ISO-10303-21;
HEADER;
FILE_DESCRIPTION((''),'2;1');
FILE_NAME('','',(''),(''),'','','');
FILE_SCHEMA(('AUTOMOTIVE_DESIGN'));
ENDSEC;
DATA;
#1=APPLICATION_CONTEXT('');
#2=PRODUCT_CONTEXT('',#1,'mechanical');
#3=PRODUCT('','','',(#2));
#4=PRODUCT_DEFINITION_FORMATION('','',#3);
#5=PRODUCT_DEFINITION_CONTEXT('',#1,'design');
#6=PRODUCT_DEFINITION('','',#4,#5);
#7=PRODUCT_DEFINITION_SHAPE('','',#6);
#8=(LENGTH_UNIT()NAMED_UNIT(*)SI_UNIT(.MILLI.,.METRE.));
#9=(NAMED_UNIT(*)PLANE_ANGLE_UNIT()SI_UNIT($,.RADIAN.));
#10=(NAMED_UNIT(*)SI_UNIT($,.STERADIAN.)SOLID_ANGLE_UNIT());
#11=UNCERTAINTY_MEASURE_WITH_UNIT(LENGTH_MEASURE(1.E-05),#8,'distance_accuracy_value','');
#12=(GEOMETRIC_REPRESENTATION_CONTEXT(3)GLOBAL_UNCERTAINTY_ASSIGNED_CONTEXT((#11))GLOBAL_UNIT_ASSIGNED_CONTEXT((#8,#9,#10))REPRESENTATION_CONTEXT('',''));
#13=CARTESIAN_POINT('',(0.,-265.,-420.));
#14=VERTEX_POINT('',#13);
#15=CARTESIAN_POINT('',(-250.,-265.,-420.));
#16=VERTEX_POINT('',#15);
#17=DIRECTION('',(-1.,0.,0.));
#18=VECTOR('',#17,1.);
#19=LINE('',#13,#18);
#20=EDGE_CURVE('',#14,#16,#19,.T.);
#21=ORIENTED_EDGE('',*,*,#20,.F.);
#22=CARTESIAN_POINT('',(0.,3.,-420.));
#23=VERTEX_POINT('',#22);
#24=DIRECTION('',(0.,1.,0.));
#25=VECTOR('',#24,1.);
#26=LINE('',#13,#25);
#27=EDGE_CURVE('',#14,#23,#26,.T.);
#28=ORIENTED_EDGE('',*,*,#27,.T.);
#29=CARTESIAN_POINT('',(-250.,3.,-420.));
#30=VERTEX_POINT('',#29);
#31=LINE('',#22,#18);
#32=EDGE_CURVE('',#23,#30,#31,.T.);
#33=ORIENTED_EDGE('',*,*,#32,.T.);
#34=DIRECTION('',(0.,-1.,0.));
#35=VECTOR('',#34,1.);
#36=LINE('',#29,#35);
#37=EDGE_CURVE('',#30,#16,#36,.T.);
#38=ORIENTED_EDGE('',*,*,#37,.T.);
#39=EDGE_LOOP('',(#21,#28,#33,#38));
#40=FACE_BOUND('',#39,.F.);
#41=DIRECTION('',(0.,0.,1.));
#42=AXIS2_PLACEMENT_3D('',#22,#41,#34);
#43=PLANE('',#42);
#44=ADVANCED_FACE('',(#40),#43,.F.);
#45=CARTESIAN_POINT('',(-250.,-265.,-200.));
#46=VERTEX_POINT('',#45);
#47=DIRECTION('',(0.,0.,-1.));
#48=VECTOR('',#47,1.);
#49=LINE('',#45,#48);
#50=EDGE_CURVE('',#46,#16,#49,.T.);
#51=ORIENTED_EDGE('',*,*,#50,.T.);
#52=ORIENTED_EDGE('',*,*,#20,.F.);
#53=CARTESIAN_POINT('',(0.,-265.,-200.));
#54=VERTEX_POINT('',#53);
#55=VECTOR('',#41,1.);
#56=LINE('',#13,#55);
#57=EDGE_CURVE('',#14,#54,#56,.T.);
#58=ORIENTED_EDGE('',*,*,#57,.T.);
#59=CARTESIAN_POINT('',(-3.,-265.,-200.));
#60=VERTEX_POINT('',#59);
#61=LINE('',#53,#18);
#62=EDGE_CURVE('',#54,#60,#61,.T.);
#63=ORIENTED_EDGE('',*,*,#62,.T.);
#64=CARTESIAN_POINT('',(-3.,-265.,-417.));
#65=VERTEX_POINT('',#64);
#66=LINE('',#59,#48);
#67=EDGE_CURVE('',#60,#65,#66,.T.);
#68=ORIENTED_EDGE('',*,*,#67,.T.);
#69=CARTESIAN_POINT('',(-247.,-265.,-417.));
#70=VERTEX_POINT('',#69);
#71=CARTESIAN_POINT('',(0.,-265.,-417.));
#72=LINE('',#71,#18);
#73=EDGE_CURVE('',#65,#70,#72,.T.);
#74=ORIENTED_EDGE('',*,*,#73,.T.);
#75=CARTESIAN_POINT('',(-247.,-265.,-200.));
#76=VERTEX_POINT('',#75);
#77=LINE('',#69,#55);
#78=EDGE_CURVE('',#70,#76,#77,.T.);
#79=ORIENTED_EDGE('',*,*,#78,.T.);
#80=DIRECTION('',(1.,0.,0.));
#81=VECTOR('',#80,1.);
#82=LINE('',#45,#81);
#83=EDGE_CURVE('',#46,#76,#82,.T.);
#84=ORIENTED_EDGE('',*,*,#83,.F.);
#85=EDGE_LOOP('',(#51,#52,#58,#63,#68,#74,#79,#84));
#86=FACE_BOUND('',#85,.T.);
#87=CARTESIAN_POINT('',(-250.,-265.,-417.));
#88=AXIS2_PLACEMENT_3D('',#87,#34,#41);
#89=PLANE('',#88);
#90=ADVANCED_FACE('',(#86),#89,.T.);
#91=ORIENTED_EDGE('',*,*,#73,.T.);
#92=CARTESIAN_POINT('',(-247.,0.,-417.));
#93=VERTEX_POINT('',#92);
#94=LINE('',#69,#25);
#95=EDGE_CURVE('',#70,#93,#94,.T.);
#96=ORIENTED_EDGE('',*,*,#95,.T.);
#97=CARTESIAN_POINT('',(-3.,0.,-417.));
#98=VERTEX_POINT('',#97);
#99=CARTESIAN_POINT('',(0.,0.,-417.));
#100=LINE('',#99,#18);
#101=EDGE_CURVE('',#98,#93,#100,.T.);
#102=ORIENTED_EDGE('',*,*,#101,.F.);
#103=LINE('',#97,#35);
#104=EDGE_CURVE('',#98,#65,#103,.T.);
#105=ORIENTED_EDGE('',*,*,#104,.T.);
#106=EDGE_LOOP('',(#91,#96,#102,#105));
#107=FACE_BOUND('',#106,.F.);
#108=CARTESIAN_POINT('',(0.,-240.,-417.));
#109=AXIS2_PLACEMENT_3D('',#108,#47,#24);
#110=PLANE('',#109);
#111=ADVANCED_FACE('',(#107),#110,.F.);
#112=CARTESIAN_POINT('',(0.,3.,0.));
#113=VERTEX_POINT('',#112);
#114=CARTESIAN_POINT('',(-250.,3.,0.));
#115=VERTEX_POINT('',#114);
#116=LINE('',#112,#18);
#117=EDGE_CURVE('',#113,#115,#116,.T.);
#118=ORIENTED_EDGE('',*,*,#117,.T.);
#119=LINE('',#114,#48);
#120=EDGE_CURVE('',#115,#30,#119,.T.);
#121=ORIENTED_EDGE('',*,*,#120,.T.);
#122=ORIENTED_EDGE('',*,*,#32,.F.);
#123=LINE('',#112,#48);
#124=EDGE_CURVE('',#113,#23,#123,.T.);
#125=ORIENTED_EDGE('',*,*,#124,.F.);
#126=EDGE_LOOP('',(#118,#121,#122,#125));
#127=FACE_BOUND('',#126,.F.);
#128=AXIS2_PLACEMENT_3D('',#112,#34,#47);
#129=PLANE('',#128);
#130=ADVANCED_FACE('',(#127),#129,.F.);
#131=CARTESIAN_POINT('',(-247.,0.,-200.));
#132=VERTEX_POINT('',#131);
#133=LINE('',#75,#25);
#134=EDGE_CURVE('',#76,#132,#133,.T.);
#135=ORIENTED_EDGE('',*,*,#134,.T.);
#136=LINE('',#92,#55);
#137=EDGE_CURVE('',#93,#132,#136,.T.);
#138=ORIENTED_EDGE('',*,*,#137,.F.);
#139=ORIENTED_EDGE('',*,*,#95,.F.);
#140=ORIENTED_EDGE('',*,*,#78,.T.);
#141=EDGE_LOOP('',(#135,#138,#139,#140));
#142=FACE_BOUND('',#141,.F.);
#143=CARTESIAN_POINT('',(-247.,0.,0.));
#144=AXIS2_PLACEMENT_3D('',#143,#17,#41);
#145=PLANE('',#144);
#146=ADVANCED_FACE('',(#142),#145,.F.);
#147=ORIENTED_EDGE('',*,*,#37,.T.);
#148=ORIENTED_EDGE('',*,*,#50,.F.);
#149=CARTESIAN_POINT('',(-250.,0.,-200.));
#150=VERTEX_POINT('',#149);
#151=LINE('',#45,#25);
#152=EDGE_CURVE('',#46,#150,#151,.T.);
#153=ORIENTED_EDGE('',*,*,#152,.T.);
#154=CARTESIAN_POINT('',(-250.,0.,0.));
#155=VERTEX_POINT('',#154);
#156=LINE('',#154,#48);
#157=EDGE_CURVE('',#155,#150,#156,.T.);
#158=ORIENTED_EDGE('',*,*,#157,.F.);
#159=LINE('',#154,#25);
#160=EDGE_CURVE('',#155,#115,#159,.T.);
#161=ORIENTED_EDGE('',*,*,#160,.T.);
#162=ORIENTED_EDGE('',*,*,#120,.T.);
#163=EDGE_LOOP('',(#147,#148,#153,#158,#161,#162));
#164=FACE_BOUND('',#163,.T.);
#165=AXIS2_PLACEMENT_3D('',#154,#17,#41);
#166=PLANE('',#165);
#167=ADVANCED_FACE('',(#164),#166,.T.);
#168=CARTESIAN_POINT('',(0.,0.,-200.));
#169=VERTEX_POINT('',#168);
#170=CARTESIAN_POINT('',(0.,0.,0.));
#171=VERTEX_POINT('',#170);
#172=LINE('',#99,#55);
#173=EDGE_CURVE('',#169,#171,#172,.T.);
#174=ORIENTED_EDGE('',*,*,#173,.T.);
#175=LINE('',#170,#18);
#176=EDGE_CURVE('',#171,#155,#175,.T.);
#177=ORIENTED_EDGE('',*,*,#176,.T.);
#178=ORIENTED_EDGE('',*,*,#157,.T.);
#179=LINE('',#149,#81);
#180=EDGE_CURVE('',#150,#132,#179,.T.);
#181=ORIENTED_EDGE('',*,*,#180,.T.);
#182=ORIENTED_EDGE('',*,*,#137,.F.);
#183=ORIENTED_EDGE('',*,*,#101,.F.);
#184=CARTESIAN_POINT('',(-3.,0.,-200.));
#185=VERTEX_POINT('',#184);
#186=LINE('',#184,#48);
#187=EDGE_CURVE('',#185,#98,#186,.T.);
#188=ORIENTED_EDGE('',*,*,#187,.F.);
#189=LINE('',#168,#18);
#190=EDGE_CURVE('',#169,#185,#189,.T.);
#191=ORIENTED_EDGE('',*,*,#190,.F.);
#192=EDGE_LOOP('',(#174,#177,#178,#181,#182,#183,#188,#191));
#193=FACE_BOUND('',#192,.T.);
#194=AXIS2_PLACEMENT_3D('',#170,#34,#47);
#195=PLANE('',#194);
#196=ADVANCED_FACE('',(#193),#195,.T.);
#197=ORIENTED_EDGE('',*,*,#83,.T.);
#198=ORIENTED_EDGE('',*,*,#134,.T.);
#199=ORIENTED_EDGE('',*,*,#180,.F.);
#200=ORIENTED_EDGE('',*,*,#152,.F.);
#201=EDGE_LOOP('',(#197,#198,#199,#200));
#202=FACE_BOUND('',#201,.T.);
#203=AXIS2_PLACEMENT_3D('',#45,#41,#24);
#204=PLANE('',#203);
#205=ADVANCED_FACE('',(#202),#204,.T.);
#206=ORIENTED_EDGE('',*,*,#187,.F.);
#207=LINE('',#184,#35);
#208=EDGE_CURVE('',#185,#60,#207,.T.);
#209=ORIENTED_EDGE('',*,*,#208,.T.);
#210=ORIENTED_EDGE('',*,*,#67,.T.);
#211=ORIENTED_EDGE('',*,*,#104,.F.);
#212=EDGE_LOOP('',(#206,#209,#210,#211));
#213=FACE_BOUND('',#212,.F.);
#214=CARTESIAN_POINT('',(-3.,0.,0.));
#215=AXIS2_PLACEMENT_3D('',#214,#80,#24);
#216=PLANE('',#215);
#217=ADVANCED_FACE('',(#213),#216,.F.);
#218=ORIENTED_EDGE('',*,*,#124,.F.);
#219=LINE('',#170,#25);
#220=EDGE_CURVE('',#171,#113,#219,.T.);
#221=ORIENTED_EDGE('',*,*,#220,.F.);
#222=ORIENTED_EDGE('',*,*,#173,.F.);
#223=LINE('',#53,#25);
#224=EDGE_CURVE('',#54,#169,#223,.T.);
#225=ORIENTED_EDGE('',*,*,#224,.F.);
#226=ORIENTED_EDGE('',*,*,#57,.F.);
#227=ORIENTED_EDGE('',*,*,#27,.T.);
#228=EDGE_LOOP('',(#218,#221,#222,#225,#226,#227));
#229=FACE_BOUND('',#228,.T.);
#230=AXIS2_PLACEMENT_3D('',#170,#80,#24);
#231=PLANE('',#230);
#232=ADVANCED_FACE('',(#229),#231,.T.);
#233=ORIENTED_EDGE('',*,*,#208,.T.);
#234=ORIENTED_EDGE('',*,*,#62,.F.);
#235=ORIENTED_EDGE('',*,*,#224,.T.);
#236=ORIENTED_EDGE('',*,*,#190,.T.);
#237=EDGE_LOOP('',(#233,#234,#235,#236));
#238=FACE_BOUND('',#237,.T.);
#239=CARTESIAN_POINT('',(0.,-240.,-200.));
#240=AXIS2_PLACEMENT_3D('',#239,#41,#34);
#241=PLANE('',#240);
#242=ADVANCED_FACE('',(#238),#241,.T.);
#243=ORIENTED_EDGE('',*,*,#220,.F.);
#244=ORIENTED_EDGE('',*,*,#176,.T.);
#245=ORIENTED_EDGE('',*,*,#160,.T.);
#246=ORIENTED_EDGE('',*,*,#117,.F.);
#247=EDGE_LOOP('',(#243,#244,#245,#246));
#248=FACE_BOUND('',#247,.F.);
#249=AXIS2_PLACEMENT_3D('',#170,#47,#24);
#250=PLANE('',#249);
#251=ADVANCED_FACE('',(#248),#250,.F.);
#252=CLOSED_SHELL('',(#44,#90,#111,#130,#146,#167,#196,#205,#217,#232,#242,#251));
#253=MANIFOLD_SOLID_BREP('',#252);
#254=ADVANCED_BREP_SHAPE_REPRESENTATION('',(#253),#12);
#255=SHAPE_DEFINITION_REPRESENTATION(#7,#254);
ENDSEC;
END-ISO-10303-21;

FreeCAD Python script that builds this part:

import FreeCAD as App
import Part
import Sketcher
from FreeCAD import Vector


def add_polygon(sketch, points):
    """Adds a closed chain of lines whose ends are joined by coincident constraints."""
    first, n = sketch.GeometryCount, len(points)
    for a, b in zip(points, points[1:] + points[:1]):
        sketch.addGeometry(Part.LineSegment(App.Vector(*a, 0), App.Vector(*b, 0)), False)
    for i in range(n):
        sketch.addConstraint(Sketcher.Constraint("Coincident", first + i, 2, first + (i + 1) % n, 1))

doc = App.newDocument("Part")
params = doc.addObject("Spreadsheet::Sheet", "Params")
for row, (alias, value) in enumerate([
    ("sketch1_width", "3 mm"),
    ("sketch1_width2", "265 mm"),
    ("sketch1_height", "417 mm"),
    ("pad1_length", "250 mm"),
    ("sketch2_width", "265 mm"),
    ("sketch2_height", "217 mm"),
    ("pad2_length", "3 mm"),
    ("sketch3_width", "265 mm"),
    ("sketch3_height", "217 mm"),
    ("pad3_length", "3 mm"),
], start=1):
    params.set(f"A{row}", alias)
    params.set(f"B{row}", "=" + value)
    params.setAlias(f"B{row}", alias)

body = doc.addObject("PartDesign::Body", "Body")

sketch1 = doc.addObject("Sketcher::SketchObject", "Sketch")
body.addObject(sketch1)
sketch1.AttachmentSupport = (doc.YZ_Plane, [""])
sketch1.MapMode = "FlatFace"
add_polygon(sketch1, [(3, 0), (0, 0), (0, -417), (-265, -417), (-265, -420), (3, -420)])
sketch1.addConstraint([
    Sketcher.Constraint("Horizontal", 0),
    Sketcher.Constraint("Vertical", 1),
    Sketcher.Constraint("Horizontal", 2),
    Sketcher.Constraint("Vertical", 3),
    Sketcher.Constraint("Horizontal", 4),
    Sketcher.Constraint("Vertical", 5),
    Sketcher.Constraint("Coincident", 0, 2, -1, 1),
    Sketcher.Constraint("Equal", 0, 3),
    Sketcher.Constraint("DistanceX", 0, 2, 0, 1, 3.0),
    Sketcher.Constraint("DistanceX", 2, 2, 2, 1, 265.0),
    Sketcher.Constraint("DistanceY", 1, 2, 1, 1, 417.0),
])
sketch1.setExpression("Constraints[14]", "Params.sketch1_width")
sketch1.setExpression("Constraints[15]", "Params.sketch1_width2")
sketch1.setExpression("Constraints[16]", "Params.sketch1_height")
pad1 = doc.addObject("PartDesign::Pad", "Pad")
body.addObject(pad1)
pad1.Profile = sketch1
pad1.setExpression("Length", "Params.pad1_length")
pad1.Reversed = True

sketch2 = doc.addObject("Sketcher::SketchObject", "Sketch001")
body.addObject(sketch2)
sketch2.AttachmentSupport = (doc.YZ_Plane, [""])
sketch2.MapMode = "FlatFace"
add_polygon(sketch2, [(0, -417), (0, -200), (-265, -200), (-265, -417)])
sketch2.addConstraint([
    Sketcher.Constraint("Vertical", 0),
    Sketcher.Constraint("Horizontal", 1),
    Sketcher.Constraint("Vertical", 2),
    Sketcher.Constraint("Horizontal", 3),
    Sketcher.Constraint("PointOnObject", 0, 2, -2),
    Sketcher.Constraint("DistanceY", 0, 2, -1, 1, 200.0),
    Sketcher.Constraint("DistanceX", 1, 2, 1, 1, 265.0),
    Sketcher.Constraint("DistanceY", 0, 1, 0, 2, 217.0),
])
sketch2.setExpression("Constraints[10]", "Params.sketch2_width")
sketch2.setExpression("Constraints[11]", "Params.sketch2_height")
pad2 = doc.addObject("PartDesign::Pad", "Pad001")
body.addObject(pad2)
pad2.Profile = sketch2
pad2.setExpression("Length", "Params.pad2_length")
pad2.Reversed = True

sketch3 = doc.addObject("Sketcher::SketchObject", "Sketch002")
body.addObject(sketch3)
sketch3.AttachmentSupport = (doc.YZ_Plane, [""])
sketch3.MapMode = "FlatFace"
sketch3.AttachmentOffset = App.Placement(Vector(0, 0, -250), App.Rotation())
add_polygon(sketch3, [(0, -417), (-265, -417), (-265, -200), (0, -200)])
sketch3.addConstraint([
    Sketcher.Constraint("Horizontal", 0),
    Sketcher.Constraint("Vertical", 1),
    Sketcher.Constraint("Horizontal", 2),
    Sketcher.Constraint("Vertical", 3),
    Sketcher.Constraint("PointOnObject", 2, 2, -2),
    Sketcher.Constraint("DistanceX", 0, 2, 0, 1, 265.0),
    Sketcher.Constraint("DistanceY", 1, 1, 1, 2, 217.0),
    Sketcher.Constraint("DistanceY", 0, 2, -1, 1, 417.0),
])
sketch3.setExpression("Constraints[9]", "Params.sketch3_width")
sketch3.setExpression("Constraints[10]", "Params.sketch3_height")
pad3 = doc.addObject("PartDesign::Pad", "Pad002")
body.addObject(pad3)
pad3.Profile = sketch3
pad3.setExpression("Length", "Params.pad3_length")

doc.recompute()
